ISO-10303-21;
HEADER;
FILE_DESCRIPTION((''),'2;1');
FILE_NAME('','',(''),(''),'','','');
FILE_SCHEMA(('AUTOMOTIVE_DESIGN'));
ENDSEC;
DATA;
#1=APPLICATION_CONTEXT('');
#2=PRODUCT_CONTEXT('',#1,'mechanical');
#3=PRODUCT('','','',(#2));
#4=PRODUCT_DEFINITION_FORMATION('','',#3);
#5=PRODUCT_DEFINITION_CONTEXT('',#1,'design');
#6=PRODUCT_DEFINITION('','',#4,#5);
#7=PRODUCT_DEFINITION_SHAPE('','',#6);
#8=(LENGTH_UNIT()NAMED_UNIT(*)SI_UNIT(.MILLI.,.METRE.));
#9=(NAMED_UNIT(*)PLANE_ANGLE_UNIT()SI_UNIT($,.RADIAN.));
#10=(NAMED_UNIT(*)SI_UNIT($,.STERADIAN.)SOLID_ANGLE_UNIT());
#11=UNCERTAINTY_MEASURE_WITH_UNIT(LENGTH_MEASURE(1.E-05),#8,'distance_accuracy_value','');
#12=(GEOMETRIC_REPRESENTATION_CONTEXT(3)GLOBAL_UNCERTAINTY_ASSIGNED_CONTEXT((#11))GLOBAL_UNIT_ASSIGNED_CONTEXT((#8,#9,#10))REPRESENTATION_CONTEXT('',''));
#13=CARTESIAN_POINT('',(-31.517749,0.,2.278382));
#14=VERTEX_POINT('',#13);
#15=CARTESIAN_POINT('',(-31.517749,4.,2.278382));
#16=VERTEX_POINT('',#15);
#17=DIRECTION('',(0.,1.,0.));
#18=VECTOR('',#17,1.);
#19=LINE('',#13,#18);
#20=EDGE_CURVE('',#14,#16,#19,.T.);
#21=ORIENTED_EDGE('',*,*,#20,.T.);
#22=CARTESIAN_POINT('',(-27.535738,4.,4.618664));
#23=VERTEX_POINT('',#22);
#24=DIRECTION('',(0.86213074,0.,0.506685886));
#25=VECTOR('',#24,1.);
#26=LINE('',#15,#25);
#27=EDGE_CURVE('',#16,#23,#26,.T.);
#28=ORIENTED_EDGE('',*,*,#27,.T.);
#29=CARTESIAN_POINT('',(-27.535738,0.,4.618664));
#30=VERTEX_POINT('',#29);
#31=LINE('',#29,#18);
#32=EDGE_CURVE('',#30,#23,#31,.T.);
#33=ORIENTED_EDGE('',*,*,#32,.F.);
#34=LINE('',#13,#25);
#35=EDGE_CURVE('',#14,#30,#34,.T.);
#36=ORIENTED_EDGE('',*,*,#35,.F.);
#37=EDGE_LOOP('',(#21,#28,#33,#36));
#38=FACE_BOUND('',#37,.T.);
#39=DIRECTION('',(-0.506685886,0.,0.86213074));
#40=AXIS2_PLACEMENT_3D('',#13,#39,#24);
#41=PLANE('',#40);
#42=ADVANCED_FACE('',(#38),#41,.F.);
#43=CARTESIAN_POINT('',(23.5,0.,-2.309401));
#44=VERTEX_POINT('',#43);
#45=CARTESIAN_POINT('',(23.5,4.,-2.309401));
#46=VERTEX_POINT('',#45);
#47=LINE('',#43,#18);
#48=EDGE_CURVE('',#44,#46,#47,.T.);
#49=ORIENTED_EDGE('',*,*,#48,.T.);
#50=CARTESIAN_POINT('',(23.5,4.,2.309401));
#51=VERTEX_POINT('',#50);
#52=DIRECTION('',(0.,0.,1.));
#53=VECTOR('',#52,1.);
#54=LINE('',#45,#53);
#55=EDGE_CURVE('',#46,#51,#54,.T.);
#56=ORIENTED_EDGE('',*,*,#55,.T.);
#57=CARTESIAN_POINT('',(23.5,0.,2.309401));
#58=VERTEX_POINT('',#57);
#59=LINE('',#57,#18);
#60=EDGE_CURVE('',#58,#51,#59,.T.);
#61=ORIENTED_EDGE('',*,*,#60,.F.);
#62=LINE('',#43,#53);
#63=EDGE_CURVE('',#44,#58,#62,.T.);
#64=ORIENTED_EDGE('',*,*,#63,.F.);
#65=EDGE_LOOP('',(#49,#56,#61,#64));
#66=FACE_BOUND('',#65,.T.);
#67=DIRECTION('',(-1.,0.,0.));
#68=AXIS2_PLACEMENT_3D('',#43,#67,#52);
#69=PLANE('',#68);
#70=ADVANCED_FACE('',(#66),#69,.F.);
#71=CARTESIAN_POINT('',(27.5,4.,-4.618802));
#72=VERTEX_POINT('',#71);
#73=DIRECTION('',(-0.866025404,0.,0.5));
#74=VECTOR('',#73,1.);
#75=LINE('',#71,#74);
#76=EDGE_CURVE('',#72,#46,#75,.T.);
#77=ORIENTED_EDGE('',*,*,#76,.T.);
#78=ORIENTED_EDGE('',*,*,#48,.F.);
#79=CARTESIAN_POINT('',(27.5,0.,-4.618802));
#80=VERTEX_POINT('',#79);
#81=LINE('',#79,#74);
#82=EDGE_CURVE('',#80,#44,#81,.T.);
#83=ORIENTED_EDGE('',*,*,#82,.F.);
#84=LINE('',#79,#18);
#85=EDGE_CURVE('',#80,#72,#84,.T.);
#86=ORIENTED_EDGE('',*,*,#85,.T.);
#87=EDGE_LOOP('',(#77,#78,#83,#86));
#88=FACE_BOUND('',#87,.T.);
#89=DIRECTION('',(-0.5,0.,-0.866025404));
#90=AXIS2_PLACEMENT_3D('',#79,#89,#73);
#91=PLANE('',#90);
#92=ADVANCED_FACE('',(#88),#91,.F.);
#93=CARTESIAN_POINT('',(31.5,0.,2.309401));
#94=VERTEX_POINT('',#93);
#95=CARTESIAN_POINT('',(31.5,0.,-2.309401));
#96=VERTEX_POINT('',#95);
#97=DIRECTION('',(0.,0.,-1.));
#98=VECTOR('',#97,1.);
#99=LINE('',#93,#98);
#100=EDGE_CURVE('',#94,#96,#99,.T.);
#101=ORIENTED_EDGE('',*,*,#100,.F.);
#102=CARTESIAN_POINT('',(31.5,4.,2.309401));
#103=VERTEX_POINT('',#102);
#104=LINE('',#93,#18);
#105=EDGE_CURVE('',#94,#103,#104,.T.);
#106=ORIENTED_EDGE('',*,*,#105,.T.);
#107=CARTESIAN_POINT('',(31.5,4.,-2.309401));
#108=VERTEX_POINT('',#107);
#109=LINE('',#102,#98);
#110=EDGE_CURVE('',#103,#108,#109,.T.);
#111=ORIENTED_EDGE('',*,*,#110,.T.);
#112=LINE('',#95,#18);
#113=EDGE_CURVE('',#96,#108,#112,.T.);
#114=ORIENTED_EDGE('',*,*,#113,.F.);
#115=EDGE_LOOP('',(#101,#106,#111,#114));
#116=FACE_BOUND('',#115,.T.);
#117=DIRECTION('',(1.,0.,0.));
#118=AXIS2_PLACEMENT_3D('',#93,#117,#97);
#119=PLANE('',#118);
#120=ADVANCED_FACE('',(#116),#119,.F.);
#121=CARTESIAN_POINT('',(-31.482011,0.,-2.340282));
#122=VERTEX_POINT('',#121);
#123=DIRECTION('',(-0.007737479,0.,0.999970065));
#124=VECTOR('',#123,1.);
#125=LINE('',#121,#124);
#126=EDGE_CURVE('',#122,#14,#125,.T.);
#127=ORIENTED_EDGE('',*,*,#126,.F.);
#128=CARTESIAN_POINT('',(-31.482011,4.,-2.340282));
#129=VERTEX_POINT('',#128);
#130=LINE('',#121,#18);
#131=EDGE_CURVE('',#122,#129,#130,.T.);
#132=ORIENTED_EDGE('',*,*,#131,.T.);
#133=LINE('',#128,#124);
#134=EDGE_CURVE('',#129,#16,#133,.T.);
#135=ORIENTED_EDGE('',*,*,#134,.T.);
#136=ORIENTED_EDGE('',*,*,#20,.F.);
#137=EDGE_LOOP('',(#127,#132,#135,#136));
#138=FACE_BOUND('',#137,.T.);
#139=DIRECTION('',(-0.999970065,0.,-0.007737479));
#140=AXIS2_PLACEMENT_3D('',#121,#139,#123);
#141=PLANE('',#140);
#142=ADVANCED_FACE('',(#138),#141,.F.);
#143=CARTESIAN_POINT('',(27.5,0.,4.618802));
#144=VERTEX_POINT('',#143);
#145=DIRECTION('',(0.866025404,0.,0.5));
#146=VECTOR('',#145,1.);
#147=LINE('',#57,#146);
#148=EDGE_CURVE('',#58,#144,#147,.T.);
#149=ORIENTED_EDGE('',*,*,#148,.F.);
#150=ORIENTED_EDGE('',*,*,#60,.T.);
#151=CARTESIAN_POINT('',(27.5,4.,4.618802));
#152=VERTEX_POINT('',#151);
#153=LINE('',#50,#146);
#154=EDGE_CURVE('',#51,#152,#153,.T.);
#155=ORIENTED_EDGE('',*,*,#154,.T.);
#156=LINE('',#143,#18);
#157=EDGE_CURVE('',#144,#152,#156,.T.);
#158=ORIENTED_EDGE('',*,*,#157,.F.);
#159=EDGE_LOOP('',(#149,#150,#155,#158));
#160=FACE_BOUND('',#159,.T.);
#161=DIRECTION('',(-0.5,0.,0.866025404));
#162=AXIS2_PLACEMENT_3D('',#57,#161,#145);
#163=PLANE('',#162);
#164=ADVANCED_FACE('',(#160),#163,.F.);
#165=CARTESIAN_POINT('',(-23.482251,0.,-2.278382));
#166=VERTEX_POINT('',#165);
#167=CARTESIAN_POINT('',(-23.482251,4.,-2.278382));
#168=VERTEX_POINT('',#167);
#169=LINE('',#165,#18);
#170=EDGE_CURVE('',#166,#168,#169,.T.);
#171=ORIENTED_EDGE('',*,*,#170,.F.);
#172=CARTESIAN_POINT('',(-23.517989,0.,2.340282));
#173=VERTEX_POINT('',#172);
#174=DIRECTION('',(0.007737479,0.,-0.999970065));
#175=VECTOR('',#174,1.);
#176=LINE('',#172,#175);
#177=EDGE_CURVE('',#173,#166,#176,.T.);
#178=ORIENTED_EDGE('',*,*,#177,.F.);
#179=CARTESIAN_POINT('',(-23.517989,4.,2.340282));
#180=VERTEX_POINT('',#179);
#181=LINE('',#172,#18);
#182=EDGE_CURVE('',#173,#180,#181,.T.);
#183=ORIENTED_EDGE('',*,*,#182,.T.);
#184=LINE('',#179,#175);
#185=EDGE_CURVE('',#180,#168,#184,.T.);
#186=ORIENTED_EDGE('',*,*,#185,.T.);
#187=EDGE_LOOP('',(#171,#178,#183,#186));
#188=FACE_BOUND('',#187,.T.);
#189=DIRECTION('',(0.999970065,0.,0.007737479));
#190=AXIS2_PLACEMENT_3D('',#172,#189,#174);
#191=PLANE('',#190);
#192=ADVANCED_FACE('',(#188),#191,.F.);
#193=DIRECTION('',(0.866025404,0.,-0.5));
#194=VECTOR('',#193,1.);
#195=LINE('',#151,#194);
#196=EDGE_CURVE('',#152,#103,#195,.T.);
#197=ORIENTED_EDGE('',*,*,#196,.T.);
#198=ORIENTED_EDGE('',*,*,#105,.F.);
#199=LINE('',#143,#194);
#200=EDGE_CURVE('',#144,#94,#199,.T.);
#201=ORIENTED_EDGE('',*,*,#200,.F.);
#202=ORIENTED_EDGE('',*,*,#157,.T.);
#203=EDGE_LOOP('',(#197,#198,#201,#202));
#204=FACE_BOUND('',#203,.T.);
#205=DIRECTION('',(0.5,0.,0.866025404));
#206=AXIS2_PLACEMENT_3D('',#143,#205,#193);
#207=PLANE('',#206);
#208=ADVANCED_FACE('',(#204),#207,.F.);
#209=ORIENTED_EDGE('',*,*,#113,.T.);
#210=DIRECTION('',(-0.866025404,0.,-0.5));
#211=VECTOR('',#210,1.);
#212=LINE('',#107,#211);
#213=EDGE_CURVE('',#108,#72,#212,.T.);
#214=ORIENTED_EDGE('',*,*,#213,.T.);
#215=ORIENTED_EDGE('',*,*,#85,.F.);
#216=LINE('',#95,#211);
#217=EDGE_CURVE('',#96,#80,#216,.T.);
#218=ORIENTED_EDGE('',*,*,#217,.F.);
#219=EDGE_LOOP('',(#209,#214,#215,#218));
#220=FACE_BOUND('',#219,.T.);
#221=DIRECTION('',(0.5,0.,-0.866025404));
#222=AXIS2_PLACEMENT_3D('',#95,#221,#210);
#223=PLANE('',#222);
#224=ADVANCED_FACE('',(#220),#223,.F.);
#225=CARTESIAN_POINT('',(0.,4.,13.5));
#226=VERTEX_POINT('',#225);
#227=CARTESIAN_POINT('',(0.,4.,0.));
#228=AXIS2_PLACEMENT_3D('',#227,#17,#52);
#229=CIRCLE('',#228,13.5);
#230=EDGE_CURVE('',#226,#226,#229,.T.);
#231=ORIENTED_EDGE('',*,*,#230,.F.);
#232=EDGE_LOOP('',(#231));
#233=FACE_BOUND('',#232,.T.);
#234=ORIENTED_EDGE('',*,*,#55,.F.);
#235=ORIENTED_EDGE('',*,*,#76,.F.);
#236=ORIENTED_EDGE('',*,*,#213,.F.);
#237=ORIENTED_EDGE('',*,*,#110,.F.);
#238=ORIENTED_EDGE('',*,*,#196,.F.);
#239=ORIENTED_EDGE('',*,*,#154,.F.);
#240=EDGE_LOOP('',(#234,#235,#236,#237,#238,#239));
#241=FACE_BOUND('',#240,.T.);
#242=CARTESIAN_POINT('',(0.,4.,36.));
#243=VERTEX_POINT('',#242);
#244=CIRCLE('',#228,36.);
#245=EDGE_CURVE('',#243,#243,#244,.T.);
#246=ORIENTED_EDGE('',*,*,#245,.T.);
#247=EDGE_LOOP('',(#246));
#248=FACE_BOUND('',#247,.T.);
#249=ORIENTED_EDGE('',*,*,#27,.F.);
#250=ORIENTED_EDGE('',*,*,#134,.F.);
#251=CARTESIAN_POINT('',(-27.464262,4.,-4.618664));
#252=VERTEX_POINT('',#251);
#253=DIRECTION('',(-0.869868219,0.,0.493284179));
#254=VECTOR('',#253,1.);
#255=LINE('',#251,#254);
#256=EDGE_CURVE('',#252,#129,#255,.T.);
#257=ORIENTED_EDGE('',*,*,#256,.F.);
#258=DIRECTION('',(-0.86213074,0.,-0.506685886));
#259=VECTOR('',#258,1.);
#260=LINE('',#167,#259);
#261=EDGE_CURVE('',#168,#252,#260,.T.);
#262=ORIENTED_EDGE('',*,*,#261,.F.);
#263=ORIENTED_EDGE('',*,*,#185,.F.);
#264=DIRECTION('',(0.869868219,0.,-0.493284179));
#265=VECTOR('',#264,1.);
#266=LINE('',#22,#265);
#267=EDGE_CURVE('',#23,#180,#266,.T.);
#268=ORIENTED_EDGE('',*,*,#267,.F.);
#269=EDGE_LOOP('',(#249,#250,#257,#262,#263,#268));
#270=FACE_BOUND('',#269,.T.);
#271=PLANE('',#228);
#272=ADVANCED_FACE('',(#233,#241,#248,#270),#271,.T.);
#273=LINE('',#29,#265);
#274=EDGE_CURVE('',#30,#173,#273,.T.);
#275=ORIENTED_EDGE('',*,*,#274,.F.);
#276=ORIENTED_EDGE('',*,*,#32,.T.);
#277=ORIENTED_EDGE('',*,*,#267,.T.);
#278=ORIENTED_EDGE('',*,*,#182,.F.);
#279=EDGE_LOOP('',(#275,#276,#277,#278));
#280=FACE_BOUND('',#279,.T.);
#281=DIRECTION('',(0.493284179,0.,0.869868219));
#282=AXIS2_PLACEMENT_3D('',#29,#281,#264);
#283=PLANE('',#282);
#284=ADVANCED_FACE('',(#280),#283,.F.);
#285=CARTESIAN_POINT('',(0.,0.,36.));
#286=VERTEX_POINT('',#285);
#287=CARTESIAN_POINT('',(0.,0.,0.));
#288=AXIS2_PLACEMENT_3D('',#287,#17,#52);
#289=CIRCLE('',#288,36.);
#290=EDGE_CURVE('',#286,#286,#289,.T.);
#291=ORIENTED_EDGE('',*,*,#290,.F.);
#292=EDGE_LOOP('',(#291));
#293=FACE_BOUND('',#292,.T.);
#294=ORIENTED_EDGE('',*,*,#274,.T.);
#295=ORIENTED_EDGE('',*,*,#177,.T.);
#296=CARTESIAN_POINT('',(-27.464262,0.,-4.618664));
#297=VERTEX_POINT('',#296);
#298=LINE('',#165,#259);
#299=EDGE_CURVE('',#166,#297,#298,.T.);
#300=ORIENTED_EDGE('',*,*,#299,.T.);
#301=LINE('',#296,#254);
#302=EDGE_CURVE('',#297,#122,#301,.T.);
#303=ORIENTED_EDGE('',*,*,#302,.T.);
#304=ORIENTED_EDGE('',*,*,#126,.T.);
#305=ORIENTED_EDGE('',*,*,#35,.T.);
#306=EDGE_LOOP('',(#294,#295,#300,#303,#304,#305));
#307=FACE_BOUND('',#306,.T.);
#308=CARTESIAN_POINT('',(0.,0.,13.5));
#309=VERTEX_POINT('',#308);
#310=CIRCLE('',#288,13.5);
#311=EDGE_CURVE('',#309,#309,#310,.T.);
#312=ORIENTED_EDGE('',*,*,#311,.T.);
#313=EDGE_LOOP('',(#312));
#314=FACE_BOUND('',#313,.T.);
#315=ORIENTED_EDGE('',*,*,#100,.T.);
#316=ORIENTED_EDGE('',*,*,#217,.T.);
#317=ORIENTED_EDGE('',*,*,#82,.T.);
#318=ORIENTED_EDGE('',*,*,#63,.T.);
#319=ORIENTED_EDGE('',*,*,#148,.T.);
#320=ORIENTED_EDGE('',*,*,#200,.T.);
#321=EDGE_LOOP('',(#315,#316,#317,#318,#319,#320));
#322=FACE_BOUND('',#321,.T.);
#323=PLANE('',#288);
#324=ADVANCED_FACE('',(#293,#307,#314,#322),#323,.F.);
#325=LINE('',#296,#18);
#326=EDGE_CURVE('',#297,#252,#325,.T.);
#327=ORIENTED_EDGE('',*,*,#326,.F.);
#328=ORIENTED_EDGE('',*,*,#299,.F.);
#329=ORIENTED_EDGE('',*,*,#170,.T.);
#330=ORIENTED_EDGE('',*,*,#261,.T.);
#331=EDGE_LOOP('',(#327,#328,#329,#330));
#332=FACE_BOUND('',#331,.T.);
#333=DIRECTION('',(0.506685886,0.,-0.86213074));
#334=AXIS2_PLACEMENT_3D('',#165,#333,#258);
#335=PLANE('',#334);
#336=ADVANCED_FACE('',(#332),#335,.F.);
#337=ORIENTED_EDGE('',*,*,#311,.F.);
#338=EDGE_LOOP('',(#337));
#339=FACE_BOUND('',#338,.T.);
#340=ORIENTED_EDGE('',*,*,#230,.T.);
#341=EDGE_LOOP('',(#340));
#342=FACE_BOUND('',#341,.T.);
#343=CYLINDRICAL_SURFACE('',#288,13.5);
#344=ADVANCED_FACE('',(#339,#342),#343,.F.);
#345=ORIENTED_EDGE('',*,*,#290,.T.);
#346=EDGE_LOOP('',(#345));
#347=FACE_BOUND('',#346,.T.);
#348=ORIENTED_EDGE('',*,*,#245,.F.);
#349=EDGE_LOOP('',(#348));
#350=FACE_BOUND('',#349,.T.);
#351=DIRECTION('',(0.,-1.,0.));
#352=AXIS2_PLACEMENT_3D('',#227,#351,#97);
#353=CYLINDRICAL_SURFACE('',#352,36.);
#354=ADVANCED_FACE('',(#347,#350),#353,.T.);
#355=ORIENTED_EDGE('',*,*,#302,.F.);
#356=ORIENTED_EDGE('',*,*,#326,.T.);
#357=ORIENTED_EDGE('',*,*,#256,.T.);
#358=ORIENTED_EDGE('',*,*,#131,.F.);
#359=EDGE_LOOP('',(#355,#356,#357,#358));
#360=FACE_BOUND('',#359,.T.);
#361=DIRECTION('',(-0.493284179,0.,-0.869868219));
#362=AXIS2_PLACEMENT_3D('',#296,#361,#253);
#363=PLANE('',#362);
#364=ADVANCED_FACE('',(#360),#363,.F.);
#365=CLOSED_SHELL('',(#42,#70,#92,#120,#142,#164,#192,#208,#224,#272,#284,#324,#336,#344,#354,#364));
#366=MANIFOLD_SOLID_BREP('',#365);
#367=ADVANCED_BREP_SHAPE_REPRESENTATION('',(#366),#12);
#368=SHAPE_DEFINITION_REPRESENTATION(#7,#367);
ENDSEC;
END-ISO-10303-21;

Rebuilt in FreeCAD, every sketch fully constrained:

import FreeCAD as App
import Part
import Sketcher
from FreeCAD import Vector
Q = App.Units.Quantity

doc = App.newDocument("Part")
body = doc.addObject("PartDesign::Body", "Body")

sketch1 = body.newObject("Sketcher::SketchObject", "Sketch")
sketch1.AttachmentSupport = (doc.getObject("XZ_Plane"), [""])
sketch1.MapMode = "FlatFace"
sketch1.addGeometry(Part.Circle(Vector(0, 0, 0), Vector(0, 0, 1), 36), False)
sketch1.addConstraint(Sketcher.Constraint("Coincident", 0, 3, -1, 1))
sketch1.addConstraint(Sketcher.Constraint("Diameter", 0, Q("72 mm")))
pad1 = body.newObject("PartDesign::Pad", "Pad")
pad1.Profile = sketch1
pad1.Length = 4
pad1.Reversed = True

sketch2 = body.newObject("Sketcher::SketchObject", "Sketch001")
sketch2.AttachmentSupport = (doc.getObject("XZ_Plane"), [""])
sketch2.MapMode = "FlatFace"
sketch2.AttachmentOffset = App.Placement(Vector(0, 0, -4), App.Rotation())
sketch2.addGeometry(Part.LineSegment(Vector(-31.5, 2.3, 0), Vector(-27.5, 4.6, 0)), False)
sketch2.addGeometry(Part.LineSegment(Vector(-27.5, 4.6, 0), Vector(-23.5, 2.3, 0)), False)
sketch2.addGeometry(Part.LineSegment(Vector(-23.5, 2.3, 0), Vector(-23.5, -2.3, 0)), False)
sketch2.addGeometry(Part.LineSegment(Vector(-23.5, -2.3, 0), Vector(-27.5, -4.6, 0)), False)
sketch2.addGeometry(Part.LineSegment(Vector(-27.5, -4.6, 0), Vector(-31.5, -2.3, 0)), False)
sketch2.addGeometry(Part.LineSegment(Vector(-31.5, -2.3, 0), Vector(-31.5, 2.3, 0)), False)
sketch2.addGeometry(Part.LineSegment(Vector(27.5, 4.6, 0), Vector(31.5, 2.3, 0)), False)
sketch2.addGeometry(Part.LineSegment(Vector(31.5, 2.3, 0), Vector(31.5, -2.3, 0)), False)
sketch2.addGeometry(Part.LineSegment(Vector(31.5, -2.3, 0), Vector(27.5, -4.6, 0)), False)
sketch2.addGeometry(Part.LineSegment(Vector(27.5, -4.6, 0), Vector(23.5, -2.3, 0)), False)
sketch2.addGeometry(Part.LineSegment(Vector(23.5, -2.3, 0), Vector(23.5, 2.3, 0)), False)
sketch2.addGeometry(Part.LineSegment(Vector(23.5, 2.3, 0), Vector(27.5, 4.6, 0)), False)
sketch2.addConstraint(Sketcher.Constraint("Coincident", 0, 2, 1, 1))
sketch2.addConstraint(Sketcher.Constraint("Coincident", 1, 2, 2, 1))
sketch2.addConstraint(Sketcher.Constraint("Coincident", 2, 2, 3, 1))
sketch2.addConstraint(Sketcher.Constraint("Coincident", 3, 2, 4, 1))
sketch2.addConstraint(Sketcher.Constraint("Coincident", 4, 2, 5, 1))
sketch2.addConstraint(Sketcher.Constraint("Coincident", 5, 2, 0, 1))
sketch2.addConstraint(Sketcher.Constraint("Coincident", 6, 2, 7, 1))
sketch2.addConstraint(Sketcher.Constraint("Coincident", 7, 2, 8, 1))
sketch2.addConstraint(Sketcher.Constraint("Coincident", 8, 2, 9, 1))
sketch2.addConstraint(Sketcher.Constraint("Coincident", 9, 2, 10, 1))
sketch2.addConstraint(Sketcher.Constraint("Coincident", 10, 2, 11, 1))
sketch2.addConstraint(Sketcher.Constraint("Coincident", 11, 2, 6, 1))
sketch2.addConstraint(Sketcher.Constraint("Vertical", 7))
sketch2.addConstraint(Sketcher.Constraint("Vertical", 10))
sketch2.addConstraint(Sketcher.Constraint("Symmetric", 8, 2, 11, 2, -1))
sketch2.addConstraint(Sketcher.Constraint("Parallel", 0, 3))
sketch2.addConstraint(Sketcher.Constraint("Parallel", 1, 4))
sketch2.addConstraint(Sketcher.Constraint("Parallel", 2, 5))
sketch2.addConstraint(Sketcher.Constraint("Parallel", 6, 9))
sketch2.addConstraint(Sketcher.Constraint("Parallel", 8, 11))
sketch2.addConstraint(Sketcher.Constraint("Horizontal", 7, 2, 9, 2))
sketch2.addConstraint(Sketcher.Constraint("Horizontal", 6, 2, 10, 2))
sketch2.addConstraint(Sketcher.Constraint("Equal", 0, 1))
sketch2.addConstraint(Sketcher.Constraint("Equal", 1, 2))
sketch2.addConstraint(Sketcher.Constraint("Equal", 2, 3))
sketch2.addConstraint(Sketcher.Constraint("Equal", 5, 6))
sketch2.addConstraint(Sketcher.Constraint("Angle", 6, Q("-30 deg")))
sketch2.addConstraint(Sketcher.Constraint("DistanceX", 8, 2, 7, 2, Q("4 mm")))
sketch2.addConstraint(Sketcher.Constraint("DistanceX", -1, 1, 6, 2, Q("31.5 mm")))
sketch2.addConstraint(Sketcher.Constraint("DistanceY", -1, 1, 6, 2, Q("2.309401 mm")))
sketch2.addConstraint(Sketcher.Constraint("DistanceY", 4, 2, 2, 2, Q("0.0619 mm")))
sketch2.addConstraint(Sketcher.Constraint("DistanceX", 5, 2, 2, 2, Q("8.035498 mm")))
sketch2.addConstraint(Sketcher.Constraint("DistanceX", 1, 2, -1, 1, Q("23.517989 mm")))
sketch2.addConstraint(Sketcher.Constraint("DistanceY", -1, 1, 1, 2, Q("2.340282 mm")))
sketch2.addConstraint(Sketcher.Constraint("DistanceX", 2, 2, -1, 1, Q("23.482251 mm")))
pocket1 = body.newObject("PartDesign::Pocket", "Pocket")
pocket1.Profile = sketch2
pocket1.Type = "ThroughAll"
pocket1.Reversed = True

sketch3 = body.newObject("Sketcher::SketchObject", "Sketch002")
sketch3.AttachmentSupport = (doc.getObject("XZ_Plane"), [""])
sketch3.MapMode = "FlatFace"
sketch3.AttachmentOffset = App.Placement(Vector(0, 0, -4), App.Rotation())
sketch3.addGeometry(Part.Circle(Vector(0, 0, 0), Vector(0, 0, 1), 14), False)
sketch3.addConstraint(Sketcher.Constraint("Coincident", 0, 3, -1, 1))
sketch3.addConstraint(Sketcher.Constraint("Diameter", 0, Q("27 mm")))
pocket2 = body.newObject("PartDesign::Pocket", "Pocket001")
pocket2.Profile = sketch3
pocket2.Type = "ThroughAll"
pocket2.Reversed = True

doc.recompute()
